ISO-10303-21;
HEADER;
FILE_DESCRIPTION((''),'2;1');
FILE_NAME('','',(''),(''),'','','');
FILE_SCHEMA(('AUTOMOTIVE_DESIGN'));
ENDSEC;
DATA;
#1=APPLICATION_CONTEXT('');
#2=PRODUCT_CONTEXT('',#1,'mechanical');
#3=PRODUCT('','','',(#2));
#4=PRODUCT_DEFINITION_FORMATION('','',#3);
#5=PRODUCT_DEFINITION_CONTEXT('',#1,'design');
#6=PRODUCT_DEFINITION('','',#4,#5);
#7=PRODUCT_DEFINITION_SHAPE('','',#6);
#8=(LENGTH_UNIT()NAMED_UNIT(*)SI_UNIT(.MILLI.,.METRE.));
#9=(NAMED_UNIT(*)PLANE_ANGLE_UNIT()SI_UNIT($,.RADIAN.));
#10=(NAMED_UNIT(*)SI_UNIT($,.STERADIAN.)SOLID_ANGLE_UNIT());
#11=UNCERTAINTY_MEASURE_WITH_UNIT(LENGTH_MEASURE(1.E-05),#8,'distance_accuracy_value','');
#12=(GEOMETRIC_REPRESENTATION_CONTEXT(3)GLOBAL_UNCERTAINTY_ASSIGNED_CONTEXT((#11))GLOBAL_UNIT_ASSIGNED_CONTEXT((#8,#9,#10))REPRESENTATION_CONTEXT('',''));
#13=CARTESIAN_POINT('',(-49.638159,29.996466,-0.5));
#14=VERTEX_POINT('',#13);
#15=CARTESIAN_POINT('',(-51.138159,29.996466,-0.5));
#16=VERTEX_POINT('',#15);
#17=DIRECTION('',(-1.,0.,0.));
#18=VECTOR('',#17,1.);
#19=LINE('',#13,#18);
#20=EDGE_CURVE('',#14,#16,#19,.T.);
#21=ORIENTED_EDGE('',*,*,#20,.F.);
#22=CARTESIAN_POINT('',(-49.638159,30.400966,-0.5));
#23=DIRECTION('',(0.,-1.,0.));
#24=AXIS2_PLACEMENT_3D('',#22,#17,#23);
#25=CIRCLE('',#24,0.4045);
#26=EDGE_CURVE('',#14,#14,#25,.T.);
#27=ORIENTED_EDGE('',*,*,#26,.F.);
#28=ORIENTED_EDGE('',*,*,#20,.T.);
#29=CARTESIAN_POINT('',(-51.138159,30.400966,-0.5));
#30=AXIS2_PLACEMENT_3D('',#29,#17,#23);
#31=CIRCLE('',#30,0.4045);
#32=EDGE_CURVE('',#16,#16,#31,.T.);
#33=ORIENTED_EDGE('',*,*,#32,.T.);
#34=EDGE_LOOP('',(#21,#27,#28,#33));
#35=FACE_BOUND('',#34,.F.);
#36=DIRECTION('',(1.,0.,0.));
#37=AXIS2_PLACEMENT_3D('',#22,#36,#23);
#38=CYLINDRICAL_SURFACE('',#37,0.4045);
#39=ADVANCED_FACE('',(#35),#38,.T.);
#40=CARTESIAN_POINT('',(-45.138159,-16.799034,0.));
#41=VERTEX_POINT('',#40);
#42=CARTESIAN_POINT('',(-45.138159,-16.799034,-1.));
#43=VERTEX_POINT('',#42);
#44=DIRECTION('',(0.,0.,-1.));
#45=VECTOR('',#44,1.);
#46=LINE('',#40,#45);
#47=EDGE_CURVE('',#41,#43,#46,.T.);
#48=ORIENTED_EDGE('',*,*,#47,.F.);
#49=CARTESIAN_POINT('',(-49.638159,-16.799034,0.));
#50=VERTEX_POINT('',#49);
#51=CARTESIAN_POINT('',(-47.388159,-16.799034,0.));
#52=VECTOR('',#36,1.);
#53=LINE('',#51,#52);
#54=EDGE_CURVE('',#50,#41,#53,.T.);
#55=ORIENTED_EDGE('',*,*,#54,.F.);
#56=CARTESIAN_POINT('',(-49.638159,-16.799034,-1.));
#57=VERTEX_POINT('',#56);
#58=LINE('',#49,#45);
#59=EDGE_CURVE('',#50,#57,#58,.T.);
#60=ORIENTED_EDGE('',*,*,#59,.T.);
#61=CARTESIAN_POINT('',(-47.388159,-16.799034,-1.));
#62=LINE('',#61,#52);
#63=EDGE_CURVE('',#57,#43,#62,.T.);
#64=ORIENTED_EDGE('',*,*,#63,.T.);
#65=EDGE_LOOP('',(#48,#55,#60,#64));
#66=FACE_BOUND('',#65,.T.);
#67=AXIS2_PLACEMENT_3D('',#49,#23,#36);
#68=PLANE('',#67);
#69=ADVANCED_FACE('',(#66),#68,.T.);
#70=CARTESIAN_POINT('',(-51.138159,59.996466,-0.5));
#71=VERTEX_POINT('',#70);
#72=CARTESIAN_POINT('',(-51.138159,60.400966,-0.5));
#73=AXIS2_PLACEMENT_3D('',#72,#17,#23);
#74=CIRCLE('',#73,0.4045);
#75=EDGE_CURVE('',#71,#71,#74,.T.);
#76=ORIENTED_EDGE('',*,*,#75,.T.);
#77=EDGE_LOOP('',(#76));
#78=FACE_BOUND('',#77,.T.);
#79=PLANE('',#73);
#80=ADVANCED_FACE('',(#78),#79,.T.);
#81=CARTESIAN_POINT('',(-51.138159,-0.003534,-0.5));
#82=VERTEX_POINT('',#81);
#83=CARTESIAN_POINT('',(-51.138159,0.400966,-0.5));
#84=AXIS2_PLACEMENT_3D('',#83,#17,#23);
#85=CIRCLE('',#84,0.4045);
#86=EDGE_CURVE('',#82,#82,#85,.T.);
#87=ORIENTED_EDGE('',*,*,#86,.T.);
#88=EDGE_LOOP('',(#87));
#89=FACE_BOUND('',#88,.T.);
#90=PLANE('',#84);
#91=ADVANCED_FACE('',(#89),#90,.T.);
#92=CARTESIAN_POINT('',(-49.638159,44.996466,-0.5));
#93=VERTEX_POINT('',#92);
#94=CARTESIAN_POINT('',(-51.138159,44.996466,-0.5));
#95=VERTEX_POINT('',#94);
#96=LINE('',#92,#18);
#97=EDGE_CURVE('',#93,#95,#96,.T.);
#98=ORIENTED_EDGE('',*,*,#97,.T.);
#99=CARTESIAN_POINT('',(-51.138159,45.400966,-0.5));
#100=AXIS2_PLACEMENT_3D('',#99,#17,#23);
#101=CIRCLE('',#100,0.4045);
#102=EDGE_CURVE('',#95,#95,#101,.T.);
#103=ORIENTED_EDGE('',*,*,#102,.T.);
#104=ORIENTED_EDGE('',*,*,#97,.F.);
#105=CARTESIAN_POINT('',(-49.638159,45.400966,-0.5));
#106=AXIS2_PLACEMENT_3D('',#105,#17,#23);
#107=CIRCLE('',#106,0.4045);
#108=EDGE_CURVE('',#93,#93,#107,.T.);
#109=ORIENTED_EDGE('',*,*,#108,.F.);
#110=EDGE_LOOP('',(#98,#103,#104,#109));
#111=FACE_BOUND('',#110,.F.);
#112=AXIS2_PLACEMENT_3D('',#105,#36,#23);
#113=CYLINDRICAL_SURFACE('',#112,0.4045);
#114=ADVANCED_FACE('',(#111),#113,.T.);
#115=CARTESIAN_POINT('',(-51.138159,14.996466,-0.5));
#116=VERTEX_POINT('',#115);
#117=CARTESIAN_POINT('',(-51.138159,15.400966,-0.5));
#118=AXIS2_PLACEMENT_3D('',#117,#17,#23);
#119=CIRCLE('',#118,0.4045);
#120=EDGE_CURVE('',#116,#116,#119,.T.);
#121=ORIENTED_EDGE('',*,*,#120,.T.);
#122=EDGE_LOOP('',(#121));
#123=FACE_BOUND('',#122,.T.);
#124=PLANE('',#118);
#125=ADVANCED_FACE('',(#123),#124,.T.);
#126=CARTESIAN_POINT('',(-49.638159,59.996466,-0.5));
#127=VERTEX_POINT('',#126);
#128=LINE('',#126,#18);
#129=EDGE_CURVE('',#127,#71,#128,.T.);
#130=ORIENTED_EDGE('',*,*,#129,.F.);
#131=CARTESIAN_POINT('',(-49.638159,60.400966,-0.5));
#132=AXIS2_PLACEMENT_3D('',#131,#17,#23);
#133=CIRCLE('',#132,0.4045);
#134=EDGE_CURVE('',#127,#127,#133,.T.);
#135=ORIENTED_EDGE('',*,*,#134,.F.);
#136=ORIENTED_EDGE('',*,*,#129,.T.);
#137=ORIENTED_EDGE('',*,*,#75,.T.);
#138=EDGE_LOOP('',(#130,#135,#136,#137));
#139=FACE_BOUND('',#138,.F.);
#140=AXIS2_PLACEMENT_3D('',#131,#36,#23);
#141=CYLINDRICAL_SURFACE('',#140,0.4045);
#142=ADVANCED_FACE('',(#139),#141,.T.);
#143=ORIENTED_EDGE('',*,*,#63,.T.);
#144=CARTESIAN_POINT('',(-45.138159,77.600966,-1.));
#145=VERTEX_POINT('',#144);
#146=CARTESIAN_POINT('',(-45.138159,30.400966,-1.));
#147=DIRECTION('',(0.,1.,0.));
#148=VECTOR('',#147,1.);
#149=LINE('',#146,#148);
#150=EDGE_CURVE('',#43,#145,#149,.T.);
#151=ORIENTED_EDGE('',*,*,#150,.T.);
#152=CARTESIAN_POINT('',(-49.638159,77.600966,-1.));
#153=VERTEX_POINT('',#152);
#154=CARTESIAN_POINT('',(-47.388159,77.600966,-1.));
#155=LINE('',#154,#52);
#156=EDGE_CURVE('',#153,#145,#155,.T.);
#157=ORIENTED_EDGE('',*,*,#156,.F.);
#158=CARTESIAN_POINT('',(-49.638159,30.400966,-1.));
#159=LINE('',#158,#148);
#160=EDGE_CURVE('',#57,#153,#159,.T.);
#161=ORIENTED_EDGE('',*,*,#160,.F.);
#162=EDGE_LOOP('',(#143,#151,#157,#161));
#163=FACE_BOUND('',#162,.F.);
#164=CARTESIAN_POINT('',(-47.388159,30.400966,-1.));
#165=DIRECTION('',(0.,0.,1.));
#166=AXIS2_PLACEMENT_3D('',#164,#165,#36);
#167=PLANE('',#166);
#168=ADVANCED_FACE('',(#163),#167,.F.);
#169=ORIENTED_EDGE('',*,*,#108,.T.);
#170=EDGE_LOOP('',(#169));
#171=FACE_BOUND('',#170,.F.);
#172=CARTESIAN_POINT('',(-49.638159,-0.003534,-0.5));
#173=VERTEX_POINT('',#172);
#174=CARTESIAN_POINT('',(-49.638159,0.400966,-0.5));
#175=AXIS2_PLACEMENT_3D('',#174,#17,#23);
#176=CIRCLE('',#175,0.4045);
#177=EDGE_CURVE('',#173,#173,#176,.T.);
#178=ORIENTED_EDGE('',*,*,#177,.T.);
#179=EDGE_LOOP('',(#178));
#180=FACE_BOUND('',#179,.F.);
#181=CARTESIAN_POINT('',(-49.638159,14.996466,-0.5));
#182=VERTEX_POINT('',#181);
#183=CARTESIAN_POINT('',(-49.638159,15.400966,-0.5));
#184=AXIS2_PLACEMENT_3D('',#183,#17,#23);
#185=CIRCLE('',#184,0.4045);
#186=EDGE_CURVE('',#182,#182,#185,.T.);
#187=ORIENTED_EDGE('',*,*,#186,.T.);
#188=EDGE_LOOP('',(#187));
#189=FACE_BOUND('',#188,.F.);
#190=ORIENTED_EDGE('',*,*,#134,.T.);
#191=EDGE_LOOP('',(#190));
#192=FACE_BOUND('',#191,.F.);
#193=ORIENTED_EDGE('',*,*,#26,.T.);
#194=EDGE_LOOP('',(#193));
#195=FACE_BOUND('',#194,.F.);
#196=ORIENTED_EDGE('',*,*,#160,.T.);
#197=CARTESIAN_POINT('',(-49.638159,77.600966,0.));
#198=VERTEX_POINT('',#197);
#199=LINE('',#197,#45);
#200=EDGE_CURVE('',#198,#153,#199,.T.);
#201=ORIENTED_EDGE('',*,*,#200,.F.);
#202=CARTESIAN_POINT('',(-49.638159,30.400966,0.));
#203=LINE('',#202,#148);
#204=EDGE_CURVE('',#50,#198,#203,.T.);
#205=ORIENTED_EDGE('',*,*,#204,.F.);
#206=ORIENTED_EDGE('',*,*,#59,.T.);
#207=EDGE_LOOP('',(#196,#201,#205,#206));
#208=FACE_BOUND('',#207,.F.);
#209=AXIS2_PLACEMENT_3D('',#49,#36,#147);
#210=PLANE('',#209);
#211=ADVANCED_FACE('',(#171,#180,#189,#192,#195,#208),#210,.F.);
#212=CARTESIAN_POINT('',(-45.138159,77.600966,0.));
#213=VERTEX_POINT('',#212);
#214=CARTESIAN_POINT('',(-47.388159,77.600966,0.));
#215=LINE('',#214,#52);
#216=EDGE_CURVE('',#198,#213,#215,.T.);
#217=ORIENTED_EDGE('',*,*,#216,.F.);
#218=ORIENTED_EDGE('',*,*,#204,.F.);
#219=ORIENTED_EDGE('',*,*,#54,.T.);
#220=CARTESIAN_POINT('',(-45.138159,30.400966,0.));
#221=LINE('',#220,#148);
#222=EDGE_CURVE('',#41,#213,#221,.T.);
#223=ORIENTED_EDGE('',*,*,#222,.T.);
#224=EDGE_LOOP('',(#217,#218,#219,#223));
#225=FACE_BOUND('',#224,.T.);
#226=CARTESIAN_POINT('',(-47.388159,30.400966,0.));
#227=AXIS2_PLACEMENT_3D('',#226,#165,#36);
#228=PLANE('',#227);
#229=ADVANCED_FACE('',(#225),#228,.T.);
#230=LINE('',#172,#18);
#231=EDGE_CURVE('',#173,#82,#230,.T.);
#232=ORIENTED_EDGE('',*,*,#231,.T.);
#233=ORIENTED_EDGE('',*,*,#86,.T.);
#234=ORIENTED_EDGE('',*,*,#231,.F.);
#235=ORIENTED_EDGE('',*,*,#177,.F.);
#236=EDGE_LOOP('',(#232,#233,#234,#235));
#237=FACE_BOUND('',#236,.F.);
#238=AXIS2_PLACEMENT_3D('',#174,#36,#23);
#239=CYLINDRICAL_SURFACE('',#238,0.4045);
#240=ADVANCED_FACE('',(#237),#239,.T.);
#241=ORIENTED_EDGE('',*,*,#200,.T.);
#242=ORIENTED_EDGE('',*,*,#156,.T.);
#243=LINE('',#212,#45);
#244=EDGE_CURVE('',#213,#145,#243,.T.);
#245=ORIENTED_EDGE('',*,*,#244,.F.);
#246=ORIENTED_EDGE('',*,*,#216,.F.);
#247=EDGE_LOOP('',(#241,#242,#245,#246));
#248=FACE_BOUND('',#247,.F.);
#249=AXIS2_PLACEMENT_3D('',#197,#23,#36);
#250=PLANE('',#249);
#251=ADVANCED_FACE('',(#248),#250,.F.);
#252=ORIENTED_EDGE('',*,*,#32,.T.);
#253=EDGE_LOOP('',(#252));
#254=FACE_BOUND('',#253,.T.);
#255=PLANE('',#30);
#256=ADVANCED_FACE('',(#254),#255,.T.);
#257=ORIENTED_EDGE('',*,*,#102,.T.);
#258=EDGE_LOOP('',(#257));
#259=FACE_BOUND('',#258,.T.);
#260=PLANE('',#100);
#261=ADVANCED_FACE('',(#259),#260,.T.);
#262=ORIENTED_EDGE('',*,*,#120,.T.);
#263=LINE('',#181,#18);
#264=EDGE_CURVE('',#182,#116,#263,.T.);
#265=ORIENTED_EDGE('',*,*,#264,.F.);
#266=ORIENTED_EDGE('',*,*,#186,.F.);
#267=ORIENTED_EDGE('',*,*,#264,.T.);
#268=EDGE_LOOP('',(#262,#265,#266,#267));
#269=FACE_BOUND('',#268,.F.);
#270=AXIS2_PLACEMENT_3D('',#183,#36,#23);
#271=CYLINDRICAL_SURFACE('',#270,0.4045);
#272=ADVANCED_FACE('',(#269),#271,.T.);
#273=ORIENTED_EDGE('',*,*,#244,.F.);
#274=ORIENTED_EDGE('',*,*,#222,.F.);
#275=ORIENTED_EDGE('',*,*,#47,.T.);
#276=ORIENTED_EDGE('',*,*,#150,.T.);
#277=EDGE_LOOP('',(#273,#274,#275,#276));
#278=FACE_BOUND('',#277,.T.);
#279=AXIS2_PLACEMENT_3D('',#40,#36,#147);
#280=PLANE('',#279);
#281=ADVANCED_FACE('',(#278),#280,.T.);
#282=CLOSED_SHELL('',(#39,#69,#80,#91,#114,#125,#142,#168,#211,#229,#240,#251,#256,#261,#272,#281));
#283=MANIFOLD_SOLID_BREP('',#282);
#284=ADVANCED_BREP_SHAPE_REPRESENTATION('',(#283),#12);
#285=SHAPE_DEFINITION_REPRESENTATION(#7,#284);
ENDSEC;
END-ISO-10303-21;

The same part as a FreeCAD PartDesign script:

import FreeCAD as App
import Part
import Sketcher

V = App.Vector


def add_polygon(sketch, points):
    """Adds a closed chain of lines whose ends are joined by coincident constraints."""
    first, n = sketch.GeometryCount, len(points)
    for a, b in zip(points, points[1:] + points[:1]):
        sketch.addGeometry(Part.LineSegment(App.Vector(*a, 0), App.Vector(*b, 0)), False)
    for i in range(n):
        sketch.addConstraint(Sketcher.Constraint("Coincident", first + i, 2, first + (i + 1) % n, 1))

doc = App.newDocument("Part")
body = doc.addObject("PartDesign::Body", "Body")

# Sketch on XY plane
sketch1 = body.newObject("Sketcher::SketchObject", "Sketch")
sketch1.AttachmentSupport = (doc.getObject("XY_Plane"), [""])
sketch1.MapMode = "FlatFace"
add_polygon(sketch1, [(-49.638159, 77.600966), (-49.638159, -16.799034), (-45.138159, -16.799034), (-45.138159, 77.600966)])  # lines 0-3
sketch1.addConstraint([
    Sketcher.Constraint("Vertical", 0),
    Sketcher.Constraint("Horizontal", 1),
    Sketcher.Constraint("Vertical", 2),
    Sketcher.Constraint("Horizontal", 3),
    Sketcher.Constraint("DistanceX", 1, 1, 1, 2, 4.5),
    Sketcher.Constraint("DistanceY", 0, 2, 0, 1, 94.4),
    Sketcher.Constraint("DistanceX", 0, 2, -1, 1, 49.638159),
    Sketcher.Constraint("DistanceY", 0, 2, -1, 1, 16.799034),
])
pad1 = body.newObject("PartDesign::Pad", "Pad")
pad1.Profile = sketch1
pad1.Length = 1
pad1.Reversed = True

# Sketch on YZ plane
sketch2 = body.newObject("Sketcher::SketchObject", "Sketch001")
sketch2.AttachmentSupport = (doc.getObject("YZ_Plane"), [""])
sketch2.MapMode = "FlatFace"
sketch2.AttachmentOffset = App.Placement(V(0, 0, -49.638159), App.Rotation())
sketch2.addGeometry([
    Part.Circle(V(30.400966, -0.5, 0), V(0, 0, 1), 0.4045),  # 0
    Part.Circle(V(0.400966, -0.5, 0), V(0, 0, 1), 0.4045),  # 1
    Part.Circle(V(60.400966, -0.5, 0), V(0, 0, 1), 0.4045),  # 2
    Part.Circle(V(45.400966, -0.5, 0), V(0, 0, 1), 0.4045),  # 3
    Part.Circle(V(15.400966, -0.5, 0), V(0, 0, 1), 0.4045),  # 4
], False)
sketch2.addConstraint([
    Sketcher.Constraint("Equal", 0, 1),
    Sketcher.Constraint("Equal", 1, 2),
    Sketcher.Constraint("Equal", 2, 3),
    Sketcher.Constraint("Equal", 3, 4),
    Sketcher.Constraint("Horizontal", 0, 3, 1, 3),
    Sketcher.Constraint("Horizontal", 1, 3, 2, 3),
    Sketcher.Constraint("Horizontal", 2, 3, 3, 3),
    Sketcher.Constraint("Horizontal", 3, 3, 4, 3),
    Sketcher.Constraint("Diameter", 0, 0.809),
    Sketcher.Constraint("DistanceX", 1, 3, 0, 3, 30.0),
    Sketcher.Constraint("DistanceX", 0, 3, 2, 3, 30.0),
    Sketcher.Constraint("DistanceX", 0, 3, 3, 3, 15.0),
    Sketcher.Constraint("DistanceX", 4, 3, 0, 3, 15.0),
    Sketcher.Constraint("DistanceY", 0, 3, -1, 1, 0.5),
    Sketcher.Constraint("DistanceX", -1, 1, 0, 3, 30.400966),
])
pad2 = body.newObject("PartDesign::Pad", "Pad001")
pad2.Profile = sketch2
pad2.Length = 1.5
pad2.Reversed = True

doc.recompute()
